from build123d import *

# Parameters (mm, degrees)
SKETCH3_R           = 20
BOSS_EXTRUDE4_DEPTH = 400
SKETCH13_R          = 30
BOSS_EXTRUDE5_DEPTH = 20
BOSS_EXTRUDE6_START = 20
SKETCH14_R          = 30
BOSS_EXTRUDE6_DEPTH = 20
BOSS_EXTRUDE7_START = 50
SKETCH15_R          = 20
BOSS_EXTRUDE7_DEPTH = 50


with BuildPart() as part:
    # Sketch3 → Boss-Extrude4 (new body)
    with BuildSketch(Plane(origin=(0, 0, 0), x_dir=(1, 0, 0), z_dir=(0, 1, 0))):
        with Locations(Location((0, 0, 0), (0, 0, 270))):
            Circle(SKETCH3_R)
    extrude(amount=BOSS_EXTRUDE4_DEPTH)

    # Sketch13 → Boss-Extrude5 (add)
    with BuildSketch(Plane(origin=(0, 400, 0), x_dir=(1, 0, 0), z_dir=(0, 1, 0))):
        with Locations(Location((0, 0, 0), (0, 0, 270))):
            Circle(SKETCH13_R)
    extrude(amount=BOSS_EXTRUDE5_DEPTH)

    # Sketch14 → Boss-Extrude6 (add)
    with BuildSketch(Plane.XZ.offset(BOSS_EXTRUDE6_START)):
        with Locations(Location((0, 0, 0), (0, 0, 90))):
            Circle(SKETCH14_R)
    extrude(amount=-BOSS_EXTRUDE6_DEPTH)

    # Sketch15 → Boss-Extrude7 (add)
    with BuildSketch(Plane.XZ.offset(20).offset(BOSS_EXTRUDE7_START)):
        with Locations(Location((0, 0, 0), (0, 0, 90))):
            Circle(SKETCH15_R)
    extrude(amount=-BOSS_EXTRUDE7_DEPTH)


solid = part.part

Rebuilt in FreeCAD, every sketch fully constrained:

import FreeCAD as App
import Part
import Sketcher
from FreeCAD import Vector

doc = App.newDocument("Part")
body = doc.addObject("PartDesign::Body", "Body")

# Sketch on XZ plane
sketch1 = body.newObject("Sketcher::SketchObject", "Sketch")
sketch1.AttachmentSupport = (doc.getObject("XZ_Plane"), [""])
sketch1.MapMode = "FlatFace"
sketch1.addGeometry(Part.Circle(Vector(0, 0, 0), Vector(0, 0, 1), 20), False)
sketch1.addConstraint([
    Sketcher.Constraint("Coincident", 0, 3, -1, 1),
    Sketcher.Constraint("Diameter", 0, 40.0),
])
pad1 = body.newObject("PartDesign::Pad", "Pad")
pad1.Profile = sketch1
pad1.Length = 400
pad1.Reversed = True

# Sketch on XZ plane
sketch2 = body.newObject("Sketcher::SketchObject", "Sketch001")
sketch2.AttachmentSupport = (doc.getObject("XZ_Plane"), [""])
sketch2.MapMode = "FlatFace"
sketch2.AttachmentOffset = App.Placement(Vector(0, 0, -400), App.Rotation())
sketch2.addGeometry(Part.Circle(Vector(0, 0, 0), Vector(0, 0, 1), 30), False)
sketch2.addConstraint([
    Sketcher.Constraint("Coincident", 0, 3, -1, 1),
    Sketcher.Constraint("Diameter", 0, 60.0),
])
pad2 = body.newObject("PartDesign::Pad", "Pad001")
pad2.Profile = sketch2
pad2.Length = 20
pad2.Reversed = True

# Sketch on XZ plane
sketch3 = body.newObject("Sketcher::SketchObject", "Sketch002")
sketch3.AttachmentSupport = (doc.getObject("XZ_Plane"), [""])
sketch3.MapMode = "FlatFace"
sketch3.AttachmentOffset = App.Placement(Vector(0, 0, 20), App.Rotation())
sketch3.addGeometry(Part.Circle(Vector(0, 0, 0), Vector(0, 0, 1), 30), False)
sketch3.addConstraint([
    Sketcher.Constraint("Coincident", 0, 3, -1, 1),
    Sketcher.Constraint("Diameter", 0, 60.0),
])
pad3 = body.newObject("PartDesign::Pad", "Pad002")
pad3.Profile = sketch3
pad3.Length = 20
pad3.Reversed = True

# Sketch on XZ plane
sketch4 = body.newObject("Sketcher::SketchObject", "Sketch003")
sketch4.AttachmentSupport = (doc.getObject("XZ_Plane"), [""])
sketch4.MapMode = "FlatFace"
sketch4.AttachmentOffset = App.Placement(Vector(0, 0, 70), App.Rotation())
sketch4.addGeometry(Part.Circle(Vector(0, 0, 0), Vector(0, 0, 1), 20), False)
sketch4.addConstraint([
    Sketcher.Constraint("Coincident", 0, 3, -1, 1),
    Sketcher.Constraint("Diameter", 0, 40.0),
])
pad4 = body.newObject("PartDesign::Pad", "Pad003")
pad4.Profile = sketch4
pad4.Length = 50
pad4.Reversed = True

doc.recompute()
